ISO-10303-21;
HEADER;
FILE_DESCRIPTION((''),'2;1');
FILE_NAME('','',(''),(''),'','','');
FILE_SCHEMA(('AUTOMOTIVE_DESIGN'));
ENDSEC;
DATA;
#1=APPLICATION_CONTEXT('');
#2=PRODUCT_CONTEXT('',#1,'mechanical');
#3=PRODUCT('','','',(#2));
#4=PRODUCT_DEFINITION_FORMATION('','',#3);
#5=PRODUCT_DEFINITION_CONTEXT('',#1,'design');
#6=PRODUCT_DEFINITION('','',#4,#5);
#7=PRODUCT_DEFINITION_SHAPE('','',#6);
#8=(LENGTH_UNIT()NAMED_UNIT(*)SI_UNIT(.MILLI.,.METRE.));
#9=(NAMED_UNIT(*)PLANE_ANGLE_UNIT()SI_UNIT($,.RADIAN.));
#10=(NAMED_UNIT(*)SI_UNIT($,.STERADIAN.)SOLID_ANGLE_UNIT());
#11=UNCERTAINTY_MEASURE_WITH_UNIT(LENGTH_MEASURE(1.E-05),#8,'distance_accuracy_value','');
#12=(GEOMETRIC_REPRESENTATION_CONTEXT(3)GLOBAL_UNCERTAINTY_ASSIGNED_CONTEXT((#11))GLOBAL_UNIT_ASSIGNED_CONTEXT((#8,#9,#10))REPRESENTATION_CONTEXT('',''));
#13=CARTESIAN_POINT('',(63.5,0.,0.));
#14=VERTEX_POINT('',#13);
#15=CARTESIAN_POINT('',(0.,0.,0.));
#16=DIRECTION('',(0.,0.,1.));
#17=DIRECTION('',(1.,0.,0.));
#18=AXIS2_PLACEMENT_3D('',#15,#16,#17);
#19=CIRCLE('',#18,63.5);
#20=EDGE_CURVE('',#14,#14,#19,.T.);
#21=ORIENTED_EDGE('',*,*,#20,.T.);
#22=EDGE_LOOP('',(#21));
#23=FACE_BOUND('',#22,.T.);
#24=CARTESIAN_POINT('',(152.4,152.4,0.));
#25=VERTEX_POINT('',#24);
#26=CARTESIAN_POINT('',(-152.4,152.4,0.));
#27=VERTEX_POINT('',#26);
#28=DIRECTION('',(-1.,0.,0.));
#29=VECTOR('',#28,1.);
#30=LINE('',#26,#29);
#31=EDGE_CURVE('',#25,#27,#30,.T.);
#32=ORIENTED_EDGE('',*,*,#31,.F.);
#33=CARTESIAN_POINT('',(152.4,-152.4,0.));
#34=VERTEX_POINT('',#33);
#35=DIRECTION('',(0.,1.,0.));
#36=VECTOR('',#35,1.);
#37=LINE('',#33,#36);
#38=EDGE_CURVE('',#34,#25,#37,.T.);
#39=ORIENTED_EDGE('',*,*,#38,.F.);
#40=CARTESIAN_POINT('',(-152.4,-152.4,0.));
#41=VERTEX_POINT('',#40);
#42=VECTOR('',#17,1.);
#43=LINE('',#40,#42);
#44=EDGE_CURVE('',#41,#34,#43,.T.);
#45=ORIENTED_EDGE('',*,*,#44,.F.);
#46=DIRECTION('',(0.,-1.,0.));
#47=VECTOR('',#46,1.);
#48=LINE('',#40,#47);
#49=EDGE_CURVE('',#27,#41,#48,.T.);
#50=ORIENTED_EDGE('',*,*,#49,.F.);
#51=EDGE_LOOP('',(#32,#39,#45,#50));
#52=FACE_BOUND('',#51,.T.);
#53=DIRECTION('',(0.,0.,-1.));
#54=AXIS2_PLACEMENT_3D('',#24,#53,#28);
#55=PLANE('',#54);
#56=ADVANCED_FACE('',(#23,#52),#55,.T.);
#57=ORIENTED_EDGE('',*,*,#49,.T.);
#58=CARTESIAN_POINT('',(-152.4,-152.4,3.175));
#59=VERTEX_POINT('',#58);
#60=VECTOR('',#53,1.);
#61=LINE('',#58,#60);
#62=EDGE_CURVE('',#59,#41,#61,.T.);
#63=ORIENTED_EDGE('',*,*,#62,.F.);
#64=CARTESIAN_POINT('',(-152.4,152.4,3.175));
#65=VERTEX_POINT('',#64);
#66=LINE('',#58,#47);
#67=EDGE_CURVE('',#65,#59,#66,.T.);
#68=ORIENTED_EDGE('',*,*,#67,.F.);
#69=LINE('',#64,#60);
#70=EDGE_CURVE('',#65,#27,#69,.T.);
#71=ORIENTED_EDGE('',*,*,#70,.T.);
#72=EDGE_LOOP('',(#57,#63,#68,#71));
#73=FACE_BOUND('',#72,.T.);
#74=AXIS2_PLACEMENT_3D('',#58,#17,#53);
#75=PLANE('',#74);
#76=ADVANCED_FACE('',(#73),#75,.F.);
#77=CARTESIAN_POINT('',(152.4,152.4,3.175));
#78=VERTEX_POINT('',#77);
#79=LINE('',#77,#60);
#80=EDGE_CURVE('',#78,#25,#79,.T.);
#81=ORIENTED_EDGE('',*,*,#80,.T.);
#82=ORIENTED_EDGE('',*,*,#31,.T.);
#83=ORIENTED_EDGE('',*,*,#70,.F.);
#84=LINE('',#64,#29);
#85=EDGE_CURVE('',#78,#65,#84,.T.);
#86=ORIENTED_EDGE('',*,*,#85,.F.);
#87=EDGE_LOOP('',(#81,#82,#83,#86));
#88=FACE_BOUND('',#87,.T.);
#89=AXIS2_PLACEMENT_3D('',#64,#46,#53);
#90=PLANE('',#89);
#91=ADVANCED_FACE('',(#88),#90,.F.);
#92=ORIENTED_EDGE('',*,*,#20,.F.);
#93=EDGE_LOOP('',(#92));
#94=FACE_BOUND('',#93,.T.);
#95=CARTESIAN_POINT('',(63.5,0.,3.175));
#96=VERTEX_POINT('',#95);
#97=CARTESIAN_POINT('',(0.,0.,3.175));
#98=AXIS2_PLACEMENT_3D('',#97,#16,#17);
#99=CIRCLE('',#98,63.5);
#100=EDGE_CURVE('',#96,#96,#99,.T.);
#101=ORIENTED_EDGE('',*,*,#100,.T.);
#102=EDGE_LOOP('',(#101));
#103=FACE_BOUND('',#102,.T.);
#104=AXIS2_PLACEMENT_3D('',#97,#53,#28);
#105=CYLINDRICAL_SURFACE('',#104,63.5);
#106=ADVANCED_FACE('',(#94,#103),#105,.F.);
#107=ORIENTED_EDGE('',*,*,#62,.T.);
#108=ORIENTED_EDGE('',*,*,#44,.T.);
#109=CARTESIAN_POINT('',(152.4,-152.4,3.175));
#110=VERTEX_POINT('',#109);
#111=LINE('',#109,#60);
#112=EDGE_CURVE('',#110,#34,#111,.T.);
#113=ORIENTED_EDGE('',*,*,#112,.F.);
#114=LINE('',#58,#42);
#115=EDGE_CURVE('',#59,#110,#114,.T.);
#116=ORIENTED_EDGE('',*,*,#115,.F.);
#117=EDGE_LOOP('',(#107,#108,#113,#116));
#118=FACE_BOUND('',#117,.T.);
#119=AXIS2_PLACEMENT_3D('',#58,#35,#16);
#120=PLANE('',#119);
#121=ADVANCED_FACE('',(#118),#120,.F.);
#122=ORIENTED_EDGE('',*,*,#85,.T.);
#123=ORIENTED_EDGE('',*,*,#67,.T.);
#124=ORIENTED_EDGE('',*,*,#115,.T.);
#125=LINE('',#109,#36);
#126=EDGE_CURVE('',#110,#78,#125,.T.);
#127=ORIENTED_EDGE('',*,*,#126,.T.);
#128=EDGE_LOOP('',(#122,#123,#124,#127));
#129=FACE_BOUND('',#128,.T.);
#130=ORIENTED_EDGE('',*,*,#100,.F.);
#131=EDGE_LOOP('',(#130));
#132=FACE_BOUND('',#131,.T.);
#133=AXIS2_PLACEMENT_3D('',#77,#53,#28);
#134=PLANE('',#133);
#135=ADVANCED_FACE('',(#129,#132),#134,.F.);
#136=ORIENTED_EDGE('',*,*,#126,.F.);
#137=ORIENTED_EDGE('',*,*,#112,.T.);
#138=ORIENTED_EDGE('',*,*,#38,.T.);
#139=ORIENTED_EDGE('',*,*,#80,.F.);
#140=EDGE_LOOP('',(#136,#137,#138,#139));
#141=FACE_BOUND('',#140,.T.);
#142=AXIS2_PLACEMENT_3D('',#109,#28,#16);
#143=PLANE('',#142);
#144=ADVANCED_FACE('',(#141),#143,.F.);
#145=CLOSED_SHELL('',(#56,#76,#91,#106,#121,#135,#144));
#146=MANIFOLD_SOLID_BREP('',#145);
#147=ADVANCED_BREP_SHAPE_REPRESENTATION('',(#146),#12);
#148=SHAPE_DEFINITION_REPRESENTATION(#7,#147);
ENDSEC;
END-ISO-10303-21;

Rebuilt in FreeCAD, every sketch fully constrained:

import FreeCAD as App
import Part
import Sketcher
Q = App.Units.Quantity

doc = App.newDocument("Part")
params = doc.addObject("Spreadsheet::Sheet", "Params")
for row, (alias, value) in enumerate([
    ("sketch1_diameter", "5 in"),
    ("sketch1_width", "12 in"),
    ("pad1_length", "0.125 in"),
], start=1):
    params.set(f"A{row}", alias)
    params.set(f"B{row}", "=" + value)
    params.setAlias(f"B{row}", alias)

body = doc.addObject("PartDesign::Body", "Body")

# Sketch on XY plane
sketch1 = body.newObject("Sketcher::SketchObject", "Sketch")
sketch1.AttachmentSupport = (doc.getObject("XY_Plane"), [""])
sketch1.MapMode = "FlatFace"
sketch1.addGeometry(Part.LineSegment(App.Vector(-152.4, 152.4, 0), App.Vector(-152.4, -152.4, 0)), False)
sketch1.addGeometry(Part.LineSegment(App.Vector(-152.4, -152.4, 0), App.Vector(152.4, -152.4, 0)), False)
sketch1.addGeometry(Part.LineSegment(App.Vector(152.4, -152.4, 0), App.Vector(152.4, 152.4, 0)), False)
sketch1.addGeometry(Part.LineSegment(App.Vector(152.4, 152.4, 0), App.Vector(-152.4, 152.4, 0)), False)
sketch1.addGeometry(Part.Circle(App.Vector(0, 0, 0), App.Vector(0, 0, 1), 63.5), False)
sketch1.addConstraint(Sketcher.Constraint("Coincident", 0, 2, 1, 1))
sketch1.addConstraint(Sketcher.Constraint("Coincident", 1, 2, 2, 1))
sketch1.addConstraint(Sketcher.Constraint("Coincident", 2, 2, 3, 1))
sketch1.addConstraint(Sketcher.Constraint("Coincident", 3, 2, 0, 1))
sketch1.addConstraint(Sketcher.Constraint("Vertical", 0))
sketch1.addConstraint(Sketcher.Constraint("Horizontal", 1))
sketch1.addConstraint(Sketcher.Constraint("Vertical", 2))
sketch1.addConstraint(Sketcher.Constraint("Horizontal", 3))
sketch1.addConstraint(Sketcher.Constraint("Coincident", 4, 3, -1, 1))
sketch1.addConstraint(Sketcher.Constraint("Symmetric", 0, 2, 2, 2, -1, 1))
sketch1.addConstraint(Sketcher.Constraint("Equal", 3, 0))
sketch1.addConstraint(Sketcher.Constraint("Diameter", 4, Q("5 in")))
sketch1.addConstraint(Sketcher.Constraint("DistanceX", 1, 1, 1, 2, Q("12 in")))
sketch1.setExpression("Constraints[11]", "Params.sketch1_diameter")
sketch1.setExpression("Constraints[12]", "Params.sketch1_width")
pad1 = body.newObject("PartDesign::Pad", "Pad")
pad1.Profile = sketch1
pad1.setExpression("Length", "Params.pad1_length")

doc.recompute()
